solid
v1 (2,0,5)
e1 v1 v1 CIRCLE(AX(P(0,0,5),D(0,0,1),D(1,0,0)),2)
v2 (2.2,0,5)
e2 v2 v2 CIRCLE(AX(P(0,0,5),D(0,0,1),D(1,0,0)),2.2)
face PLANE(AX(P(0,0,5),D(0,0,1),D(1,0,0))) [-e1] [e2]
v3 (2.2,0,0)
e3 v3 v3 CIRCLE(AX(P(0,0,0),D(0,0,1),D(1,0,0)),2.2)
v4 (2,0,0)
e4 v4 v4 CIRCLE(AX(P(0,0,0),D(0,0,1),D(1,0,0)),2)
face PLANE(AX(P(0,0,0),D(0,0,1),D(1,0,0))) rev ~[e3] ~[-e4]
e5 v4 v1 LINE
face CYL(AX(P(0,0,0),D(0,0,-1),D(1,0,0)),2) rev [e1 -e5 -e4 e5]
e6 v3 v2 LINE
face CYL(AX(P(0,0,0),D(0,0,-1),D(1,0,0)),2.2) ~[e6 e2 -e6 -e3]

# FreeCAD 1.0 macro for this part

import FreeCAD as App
import Part
import Sketcher

V = App.Vector
Q = App.Units.Quantity

doc = App.newDocument("Part")
params = doc.addObject("Spreadsheet::Sheet", "Params")
for row, (alias, value) in enumerate([
    ("sketch1_diameter", "4 mm"),
    ("sketch1_diameter2", "4.4 mm"),
    ("pad1_length", "5 mm"),
], start=1):
    params.set(f"A{row}", alias)
    params.set(f"B{row}", "=" + value)
    params.setAlias(f"B{row}", alias)

body = doc.addObject("PartDesign::Body", "Body")

# Sketch on XY plane
sketch1 = body.newObject("Sketcher::SketchObject", "Sketch")
sketch1.AttachmentSupport = (doc.getObject("XY_Plane"), [""])
sketch1.MapMode = "FlatFace"
sketch1.addGeometry([
    Part.Circle(V(0, 0, 0), V(0, 0, 1), 2.2),
    Part.Circle(V(0, 0, 0), V(0, 0, 1), 2),
], False)
sketch1.addConstraint([
    Sketcher.Constraint("Coincident", 0, 3, -1, 1),
    Sketcher.Constraint("Coincident", 1, 3, -1, 1),
    Sketcher.Constraint("Diameter", 1, Q("4 mm")),
    Sketcher.Constraint("Diameter", 0, Q("4.4 mm")),
])
sketch1.setExpression("Constraints[2]", "Params.sketch1_diameter")
sketch1.setExpression("Constraints[3]", "Params.sketch1_diameter2")
pad1 = body.newObject("PartDesign::Pad", "Pad")
pad1.Profile = sketch1
pad1.setExpression("Length", "Params.pad1_length")

doc.recompute()
